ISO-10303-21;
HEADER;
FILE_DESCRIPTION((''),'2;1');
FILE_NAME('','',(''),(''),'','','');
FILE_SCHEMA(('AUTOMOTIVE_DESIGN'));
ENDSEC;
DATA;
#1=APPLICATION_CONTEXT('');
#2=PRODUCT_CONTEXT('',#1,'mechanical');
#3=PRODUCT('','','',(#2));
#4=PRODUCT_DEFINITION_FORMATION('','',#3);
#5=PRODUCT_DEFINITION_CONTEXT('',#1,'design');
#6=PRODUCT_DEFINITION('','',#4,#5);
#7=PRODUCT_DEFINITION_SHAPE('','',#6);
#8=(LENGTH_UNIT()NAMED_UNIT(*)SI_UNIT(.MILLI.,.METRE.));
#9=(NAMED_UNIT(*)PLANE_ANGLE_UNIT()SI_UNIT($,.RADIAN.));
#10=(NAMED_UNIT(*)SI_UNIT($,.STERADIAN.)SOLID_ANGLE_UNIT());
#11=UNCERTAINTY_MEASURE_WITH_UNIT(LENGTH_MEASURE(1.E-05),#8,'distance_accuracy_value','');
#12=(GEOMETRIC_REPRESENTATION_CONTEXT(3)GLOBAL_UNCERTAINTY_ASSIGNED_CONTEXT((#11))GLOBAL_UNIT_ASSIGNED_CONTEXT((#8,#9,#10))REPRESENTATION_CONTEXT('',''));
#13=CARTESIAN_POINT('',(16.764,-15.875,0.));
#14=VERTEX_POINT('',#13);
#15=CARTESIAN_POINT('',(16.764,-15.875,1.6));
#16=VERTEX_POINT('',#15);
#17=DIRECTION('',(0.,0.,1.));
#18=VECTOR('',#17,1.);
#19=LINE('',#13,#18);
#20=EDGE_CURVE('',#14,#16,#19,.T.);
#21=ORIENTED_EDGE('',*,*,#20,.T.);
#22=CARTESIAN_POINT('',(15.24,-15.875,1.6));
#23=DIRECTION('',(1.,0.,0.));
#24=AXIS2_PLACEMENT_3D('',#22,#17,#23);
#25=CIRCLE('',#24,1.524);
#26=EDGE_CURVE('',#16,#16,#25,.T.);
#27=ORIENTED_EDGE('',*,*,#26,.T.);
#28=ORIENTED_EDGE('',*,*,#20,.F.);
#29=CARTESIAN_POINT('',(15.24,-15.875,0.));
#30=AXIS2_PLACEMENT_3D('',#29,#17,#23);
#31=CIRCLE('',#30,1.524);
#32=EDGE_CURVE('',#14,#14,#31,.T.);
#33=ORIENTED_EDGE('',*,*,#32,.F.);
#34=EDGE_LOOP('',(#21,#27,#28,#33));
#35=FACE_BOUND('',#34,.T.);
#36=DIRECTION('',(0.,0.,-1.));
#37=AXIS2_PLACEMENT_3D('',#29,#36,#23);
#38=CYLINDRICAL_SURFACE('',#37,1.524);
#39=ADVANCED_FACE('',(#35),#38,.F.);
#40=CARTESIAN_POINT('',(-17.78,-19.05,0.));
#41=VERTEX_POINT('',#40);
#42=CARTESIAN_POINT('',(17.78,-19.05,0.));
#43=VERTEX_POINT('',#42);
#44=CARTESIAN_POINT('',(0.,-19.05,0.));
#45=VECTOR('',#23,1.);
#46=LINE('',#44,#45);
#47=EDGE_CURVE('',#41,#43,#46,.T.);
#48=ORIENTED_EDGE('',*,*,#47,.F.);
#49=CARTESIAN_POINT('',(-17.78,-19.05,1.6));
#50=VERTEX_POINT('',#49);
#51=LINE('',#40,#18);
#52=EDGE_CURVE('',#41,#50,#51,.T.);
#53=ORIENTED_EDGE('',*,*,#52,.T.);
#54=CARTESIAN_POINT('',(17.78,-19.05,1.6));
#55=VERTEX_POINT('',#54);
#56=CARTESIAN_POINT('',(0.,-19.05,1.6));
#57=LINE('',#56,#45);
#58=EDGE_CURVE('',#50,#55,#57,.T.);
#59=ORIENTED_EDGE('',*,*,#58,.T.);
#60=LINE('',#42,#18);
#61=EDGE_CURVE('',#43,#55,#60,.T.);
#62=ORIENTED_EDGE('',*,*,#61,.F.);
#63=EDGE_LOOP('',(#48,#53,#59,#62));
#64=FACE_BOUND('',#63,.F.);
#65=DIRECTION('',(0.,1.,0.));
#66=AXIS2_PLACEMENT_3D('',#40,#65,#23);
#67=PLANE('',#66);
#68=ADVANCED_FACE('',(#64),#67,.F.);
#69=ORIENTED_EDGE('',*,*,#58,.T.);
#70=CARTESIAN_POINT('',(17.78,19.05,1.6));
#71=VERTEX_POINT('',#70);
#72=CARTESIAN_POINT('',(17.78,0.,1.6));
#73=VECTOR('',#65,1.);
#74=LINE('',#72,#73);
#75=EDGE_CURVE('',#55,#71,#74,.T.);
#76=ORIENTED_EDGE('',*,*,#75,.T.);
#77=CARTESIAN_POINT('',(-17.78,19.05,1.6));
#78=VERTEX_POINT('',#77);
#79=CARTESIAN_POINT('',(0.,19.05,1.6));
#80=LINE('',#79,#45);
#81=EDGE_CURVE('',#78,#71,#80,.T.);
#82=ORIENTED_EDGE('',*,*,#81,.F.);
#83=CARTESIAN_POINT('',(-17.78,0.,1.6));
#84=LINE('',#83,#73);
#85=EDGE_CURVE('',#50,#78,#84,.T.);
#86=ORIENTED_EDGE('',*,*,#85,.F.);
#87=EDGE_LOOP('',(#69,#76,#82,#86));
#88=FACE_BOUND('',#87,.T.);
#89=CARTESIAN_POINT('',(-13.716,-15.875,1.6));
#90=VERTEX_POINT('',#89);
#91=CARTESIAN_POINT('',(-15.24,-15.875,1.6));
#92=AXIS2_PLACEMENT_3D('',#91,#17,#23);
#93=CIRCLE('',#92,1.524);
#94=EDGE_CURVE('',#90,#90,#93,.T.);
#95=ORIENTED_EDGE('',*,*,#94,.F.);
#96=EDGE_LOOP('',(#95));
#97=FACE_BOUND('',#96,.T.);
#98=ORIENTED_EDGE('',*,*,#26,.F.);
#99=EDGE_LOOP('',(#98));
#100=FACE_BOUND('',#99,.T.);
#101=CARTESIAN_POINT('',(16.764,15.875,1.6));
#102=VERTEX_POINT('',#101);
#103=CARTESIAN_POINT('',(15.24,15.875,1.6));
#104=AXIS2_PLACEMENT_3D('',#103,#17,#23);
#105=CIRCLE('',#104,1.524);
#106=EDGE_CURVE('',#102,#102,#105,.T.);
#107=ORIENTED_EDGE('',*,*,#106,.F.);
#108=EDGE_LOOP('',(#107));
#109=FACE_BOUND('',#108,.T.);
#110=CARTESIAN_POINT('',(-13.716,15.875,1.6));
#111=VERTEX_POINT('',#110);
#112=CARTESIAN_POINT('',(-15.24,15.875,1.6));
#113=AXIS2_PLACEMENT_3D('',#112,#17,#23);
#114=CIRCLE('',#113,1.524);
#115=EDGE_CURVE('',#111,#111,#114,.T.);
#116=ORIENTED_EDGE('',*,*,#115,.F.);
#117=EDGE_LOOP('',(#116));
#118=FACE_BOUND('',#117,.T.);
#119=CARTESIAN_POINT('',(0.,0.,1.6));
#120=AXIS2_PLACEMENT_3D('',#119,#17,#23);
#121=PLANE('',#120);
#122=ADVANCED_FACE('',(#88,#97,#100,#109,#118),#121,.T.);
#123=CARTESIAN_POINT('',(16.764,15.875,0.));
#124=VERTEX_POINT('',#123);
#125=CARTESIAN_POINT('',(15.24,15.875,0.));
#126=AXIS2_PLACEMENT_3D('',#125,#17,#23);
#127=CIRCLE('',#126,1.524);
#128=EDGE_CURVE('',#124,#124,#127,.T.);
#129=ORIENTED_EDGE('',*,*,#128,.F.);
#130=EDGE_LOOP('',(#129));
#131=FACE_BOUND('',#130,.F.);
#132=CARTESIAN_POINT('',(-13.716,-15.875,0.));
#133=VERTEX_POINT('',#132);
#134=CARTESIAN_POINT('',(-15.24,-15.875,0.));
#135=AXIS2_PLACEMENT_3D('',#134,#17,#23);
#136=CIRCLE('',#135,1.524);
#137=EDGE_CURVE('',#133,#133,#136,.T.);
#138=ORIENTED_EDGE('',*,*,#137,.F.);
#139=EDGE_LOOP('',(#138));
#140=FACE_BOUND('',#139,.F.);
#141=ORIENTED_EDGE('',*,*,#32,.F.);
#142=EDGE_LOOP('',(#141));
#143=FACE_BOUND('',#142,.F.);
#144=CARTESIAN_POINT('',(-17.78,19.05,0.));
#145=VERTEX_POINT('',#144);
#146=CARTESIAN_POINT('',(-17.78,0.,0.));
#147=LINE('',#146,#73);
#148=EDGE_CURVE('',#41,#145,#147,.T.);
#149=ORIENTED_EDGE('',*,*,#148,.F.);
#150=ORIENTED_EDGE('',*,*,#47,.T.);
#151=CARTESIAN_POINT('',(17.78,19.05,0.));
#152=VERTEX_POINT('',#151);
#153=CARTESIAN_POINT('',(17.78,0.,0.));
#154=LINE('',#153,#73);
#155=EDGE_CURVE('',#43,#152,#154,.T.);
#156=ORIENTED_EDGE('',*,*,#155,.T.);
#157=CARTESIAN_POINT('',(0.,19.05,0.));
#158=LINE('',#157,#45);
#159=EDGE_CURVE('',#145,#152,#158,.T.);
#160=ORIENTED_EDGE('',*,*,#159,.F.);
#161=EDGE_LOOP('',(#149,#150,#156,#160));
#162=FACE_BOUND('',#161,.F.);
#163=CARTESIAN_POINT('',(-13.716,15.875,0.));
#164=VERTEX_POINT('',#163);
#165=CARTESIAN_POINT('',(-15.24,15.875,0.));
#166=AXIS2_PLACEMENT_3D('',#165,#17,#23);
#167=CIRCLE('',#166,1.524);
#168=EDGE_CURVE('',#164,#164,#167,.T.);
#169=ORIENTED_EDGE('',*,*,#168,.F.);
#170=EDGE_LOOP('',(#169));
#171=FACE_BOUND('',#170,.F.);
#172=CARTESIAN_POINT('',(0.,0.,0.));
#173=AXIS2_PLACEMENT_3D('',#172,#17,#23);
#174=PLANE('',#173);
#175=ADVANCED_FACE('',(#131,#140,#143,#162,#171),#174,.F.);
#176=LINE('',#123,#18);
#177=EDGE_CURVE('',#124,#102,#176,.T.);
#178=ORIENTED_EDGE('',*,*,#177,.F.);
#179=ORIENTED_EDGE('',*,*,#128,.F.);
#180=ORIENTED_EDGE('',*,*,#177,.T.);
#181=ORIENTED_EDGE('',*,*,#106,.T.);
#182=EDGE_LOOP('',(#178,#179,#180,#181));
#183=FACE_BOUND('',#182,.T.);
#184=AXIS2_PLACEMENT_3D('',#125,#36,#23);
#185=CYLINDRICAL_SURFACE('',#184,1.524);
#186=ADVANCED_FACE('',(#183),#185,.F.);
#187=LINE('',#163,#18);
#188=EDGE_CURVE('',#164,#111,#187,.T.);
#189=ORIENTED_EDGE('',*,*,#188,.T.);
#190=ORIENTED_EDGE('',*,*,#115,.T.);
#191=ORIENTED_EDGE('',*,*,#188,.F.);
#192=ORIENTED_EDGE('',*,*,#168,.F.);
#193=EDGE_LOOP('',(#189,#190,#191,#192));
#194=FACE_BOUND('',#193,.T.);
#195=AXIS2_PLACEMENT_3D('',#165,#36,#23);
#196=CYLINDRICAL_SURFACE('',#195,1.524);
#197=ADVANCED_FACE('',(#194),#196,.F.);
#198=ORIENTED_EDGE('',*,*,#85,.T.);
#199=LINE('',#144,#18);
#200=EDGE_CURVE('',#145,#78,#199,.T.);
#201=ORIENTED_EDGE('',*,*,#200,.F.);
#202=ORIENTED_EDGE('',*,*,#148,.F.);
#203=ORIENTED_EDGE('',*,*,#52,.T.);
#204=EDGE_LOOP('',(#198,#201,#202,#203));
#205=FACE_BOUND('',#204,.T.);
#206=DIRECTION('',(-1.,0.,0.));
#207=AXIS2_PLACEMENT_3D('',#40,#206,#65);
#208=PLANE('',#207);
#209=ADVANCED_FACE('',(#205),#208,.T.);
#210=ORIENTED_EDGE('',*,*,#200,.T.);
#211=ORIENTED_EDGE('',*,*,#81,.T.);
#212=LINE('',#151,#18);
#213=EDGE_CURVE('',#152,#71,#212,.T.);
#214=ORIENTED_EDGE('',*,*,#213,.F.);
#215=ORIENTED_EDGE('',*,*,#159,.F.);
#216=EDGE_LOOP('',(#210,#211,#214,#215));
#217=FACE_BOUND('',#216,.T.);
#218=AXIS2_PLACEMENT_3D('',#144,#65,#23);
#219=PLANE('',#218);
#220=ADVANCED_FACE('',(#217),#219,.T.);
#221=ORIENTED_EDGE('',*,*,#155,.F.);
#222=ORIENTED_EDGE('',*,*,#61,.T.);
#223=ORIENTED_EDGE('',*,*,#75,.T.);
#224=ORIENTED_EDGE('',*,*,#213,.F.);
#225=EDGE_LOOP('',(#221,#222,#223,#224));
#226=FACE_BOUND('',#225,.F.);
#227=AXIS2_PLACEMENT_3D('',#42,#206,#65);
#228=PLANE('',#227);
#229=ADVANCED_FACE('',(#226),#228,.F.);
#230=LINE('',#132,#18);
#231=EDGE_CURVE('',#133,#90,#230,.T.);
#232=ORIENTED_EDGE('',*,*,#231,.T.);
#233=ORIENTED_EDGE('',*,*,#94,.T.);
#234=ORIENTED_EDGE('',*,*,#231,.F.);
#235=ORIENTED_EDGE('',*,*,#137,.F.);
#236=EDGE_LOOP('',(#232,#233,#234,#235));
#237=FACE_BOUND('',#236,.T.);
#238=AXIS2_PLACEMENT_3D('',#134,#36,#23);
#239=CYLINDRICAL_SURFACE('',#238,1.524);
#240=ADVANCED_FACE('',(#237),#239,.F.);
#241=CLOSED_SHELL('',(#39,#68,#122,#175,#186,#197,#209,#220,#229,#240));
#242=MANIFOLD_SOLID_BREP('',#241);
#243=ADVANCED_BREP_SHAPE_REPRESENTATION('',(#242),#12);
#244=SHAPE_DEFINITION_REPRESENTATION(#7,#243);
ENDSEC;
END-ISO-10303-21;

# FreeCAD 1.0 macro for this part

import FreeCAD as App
import Part
import Sketcher
Q = App.Units.Quantity

doc = App.newDocument("Part")
body = doc.addObject("PartDesign::Body", "Body")

# Sketch on XY plane
sketch1 = body.newObject("Sketcher::SketchObject", "Sketch")
sketch1.AttachmentSupport = (doc.getObject("XY_Plane"), [""])
sketch1.MapMode = "FlatFace"
sketch1.addGeometry(Part.LineSegment(App.Vector(-17.78, 19.05, 0), App.Vector(-17.78, -19.05, 0)), False)
sketch1.addGeometry(Part.LineSegment(App.Vector(-17.78, -19.05, 0), App.Vector(17.78, -19.05, 0)), False)
sketch1.addGeometry(Part.LineSegment(App.Vector(17.78, -19.05, 0), App.Vector(17.78, 19.05, 0)), False)
sketch1.addGeometry(Part.LineSegment(App.Vector(17.78, 19.05, 0), App.Vector(-17.78, 19.05, 0)), False)
sketch1.addGeometry(Part.Circle(App.Vector(-15.24, -15.875, 0), App.Vector(0, 0, 1), 1.524), False)
sketch1.addGeometry(Part.Circle(App.Vector(15.24, -15.875, 0), App.Vector(0, 0, 1), 1.524), False)
sketch1.addGeometry(Part.Circle(App.Vector(-15.24, 15.875, 0), App.Vector(0, 0, 1), 1.524), False)
sketch1.addGeometry(Part.Circle(App.Vector(15.24, 15.875, 0), App.Vector(0, 0, 1), 1.524), False)
sketch1.addConstraint(Sketcher.Constraint("Coincident", 0, 2, 1, 1))
sketch1.addConstraint(Sketcher.Constraint("Coincident", 1, 2, 2, 1))
sketch1.addConstraint(Sketcher.Constraint("Coincident", 2, 2, 3, 1))
sketch1.addConstraint(Sketcher.Constraint("Coincident", 3, 2, 0, 1))
sketch1.addConstraint(Sketcher.Constraint("Vertical", 0))
sketch1.addConstraint(Sketcher.Constraint("Horizontal", 1))
sketch1.addConstraint(Sketcher.Constraint("Vertical", 2))
sketch1.addConstraint(Sketcher.Constraint("Horizontal", 3))
sketch1.addConstraint(Sketcher.Constraint("Equal", 4, 5))
sketch1.addConstraint(Sketcher.Constraint("Equal", 5, 6))
sketch1.addConstraint(Sketcher.Constraint("Equal", 6, 7))
sketch1.addConstraint(Sketcher.Constraint("Symmetric", 5, 3, 6, 3, -1, 1))
sketch1.addConstraint(Sketcher.Constraint("Symmetric", 4, 3, 7, 3, -1, 1))
sketch1.addConstraint(Sketcher.Constraint("Symmetric", 0, 2, 2, 2, -1, 1))
sketch1.addConstraint(Sketcher.Constraint("Symmetric", 4, 3, 5, 3, -2))
sketch1.addConstraint(Sketcher.Constraint("Diameter", 4, Q("0.12 in")))
sketch1.addConstraint(Sketcher.Constraint("DistanceX", 1, 1, 1, 2, Q("1.4 in")))
sketch1.addConstraint(Sketcher.Constraint("DistanceY", 0, 2, 0, 1, Q("1.5 in")))
sketch1.addConstraint(Sketcher.Constraint("DistanceX", 4, 3, -1, 1, Q("0.6 in")))
sketch1.addConstraint(Sketcher.Constraint("DistanceY", 4, 3, 6, 3, Q("1.25 in")))
pad1 = body.newObject("PartDesign::Pad", "Pad")
pad1.Profile = sketch1
pad1.Length = 1.6

doc.recompute()
